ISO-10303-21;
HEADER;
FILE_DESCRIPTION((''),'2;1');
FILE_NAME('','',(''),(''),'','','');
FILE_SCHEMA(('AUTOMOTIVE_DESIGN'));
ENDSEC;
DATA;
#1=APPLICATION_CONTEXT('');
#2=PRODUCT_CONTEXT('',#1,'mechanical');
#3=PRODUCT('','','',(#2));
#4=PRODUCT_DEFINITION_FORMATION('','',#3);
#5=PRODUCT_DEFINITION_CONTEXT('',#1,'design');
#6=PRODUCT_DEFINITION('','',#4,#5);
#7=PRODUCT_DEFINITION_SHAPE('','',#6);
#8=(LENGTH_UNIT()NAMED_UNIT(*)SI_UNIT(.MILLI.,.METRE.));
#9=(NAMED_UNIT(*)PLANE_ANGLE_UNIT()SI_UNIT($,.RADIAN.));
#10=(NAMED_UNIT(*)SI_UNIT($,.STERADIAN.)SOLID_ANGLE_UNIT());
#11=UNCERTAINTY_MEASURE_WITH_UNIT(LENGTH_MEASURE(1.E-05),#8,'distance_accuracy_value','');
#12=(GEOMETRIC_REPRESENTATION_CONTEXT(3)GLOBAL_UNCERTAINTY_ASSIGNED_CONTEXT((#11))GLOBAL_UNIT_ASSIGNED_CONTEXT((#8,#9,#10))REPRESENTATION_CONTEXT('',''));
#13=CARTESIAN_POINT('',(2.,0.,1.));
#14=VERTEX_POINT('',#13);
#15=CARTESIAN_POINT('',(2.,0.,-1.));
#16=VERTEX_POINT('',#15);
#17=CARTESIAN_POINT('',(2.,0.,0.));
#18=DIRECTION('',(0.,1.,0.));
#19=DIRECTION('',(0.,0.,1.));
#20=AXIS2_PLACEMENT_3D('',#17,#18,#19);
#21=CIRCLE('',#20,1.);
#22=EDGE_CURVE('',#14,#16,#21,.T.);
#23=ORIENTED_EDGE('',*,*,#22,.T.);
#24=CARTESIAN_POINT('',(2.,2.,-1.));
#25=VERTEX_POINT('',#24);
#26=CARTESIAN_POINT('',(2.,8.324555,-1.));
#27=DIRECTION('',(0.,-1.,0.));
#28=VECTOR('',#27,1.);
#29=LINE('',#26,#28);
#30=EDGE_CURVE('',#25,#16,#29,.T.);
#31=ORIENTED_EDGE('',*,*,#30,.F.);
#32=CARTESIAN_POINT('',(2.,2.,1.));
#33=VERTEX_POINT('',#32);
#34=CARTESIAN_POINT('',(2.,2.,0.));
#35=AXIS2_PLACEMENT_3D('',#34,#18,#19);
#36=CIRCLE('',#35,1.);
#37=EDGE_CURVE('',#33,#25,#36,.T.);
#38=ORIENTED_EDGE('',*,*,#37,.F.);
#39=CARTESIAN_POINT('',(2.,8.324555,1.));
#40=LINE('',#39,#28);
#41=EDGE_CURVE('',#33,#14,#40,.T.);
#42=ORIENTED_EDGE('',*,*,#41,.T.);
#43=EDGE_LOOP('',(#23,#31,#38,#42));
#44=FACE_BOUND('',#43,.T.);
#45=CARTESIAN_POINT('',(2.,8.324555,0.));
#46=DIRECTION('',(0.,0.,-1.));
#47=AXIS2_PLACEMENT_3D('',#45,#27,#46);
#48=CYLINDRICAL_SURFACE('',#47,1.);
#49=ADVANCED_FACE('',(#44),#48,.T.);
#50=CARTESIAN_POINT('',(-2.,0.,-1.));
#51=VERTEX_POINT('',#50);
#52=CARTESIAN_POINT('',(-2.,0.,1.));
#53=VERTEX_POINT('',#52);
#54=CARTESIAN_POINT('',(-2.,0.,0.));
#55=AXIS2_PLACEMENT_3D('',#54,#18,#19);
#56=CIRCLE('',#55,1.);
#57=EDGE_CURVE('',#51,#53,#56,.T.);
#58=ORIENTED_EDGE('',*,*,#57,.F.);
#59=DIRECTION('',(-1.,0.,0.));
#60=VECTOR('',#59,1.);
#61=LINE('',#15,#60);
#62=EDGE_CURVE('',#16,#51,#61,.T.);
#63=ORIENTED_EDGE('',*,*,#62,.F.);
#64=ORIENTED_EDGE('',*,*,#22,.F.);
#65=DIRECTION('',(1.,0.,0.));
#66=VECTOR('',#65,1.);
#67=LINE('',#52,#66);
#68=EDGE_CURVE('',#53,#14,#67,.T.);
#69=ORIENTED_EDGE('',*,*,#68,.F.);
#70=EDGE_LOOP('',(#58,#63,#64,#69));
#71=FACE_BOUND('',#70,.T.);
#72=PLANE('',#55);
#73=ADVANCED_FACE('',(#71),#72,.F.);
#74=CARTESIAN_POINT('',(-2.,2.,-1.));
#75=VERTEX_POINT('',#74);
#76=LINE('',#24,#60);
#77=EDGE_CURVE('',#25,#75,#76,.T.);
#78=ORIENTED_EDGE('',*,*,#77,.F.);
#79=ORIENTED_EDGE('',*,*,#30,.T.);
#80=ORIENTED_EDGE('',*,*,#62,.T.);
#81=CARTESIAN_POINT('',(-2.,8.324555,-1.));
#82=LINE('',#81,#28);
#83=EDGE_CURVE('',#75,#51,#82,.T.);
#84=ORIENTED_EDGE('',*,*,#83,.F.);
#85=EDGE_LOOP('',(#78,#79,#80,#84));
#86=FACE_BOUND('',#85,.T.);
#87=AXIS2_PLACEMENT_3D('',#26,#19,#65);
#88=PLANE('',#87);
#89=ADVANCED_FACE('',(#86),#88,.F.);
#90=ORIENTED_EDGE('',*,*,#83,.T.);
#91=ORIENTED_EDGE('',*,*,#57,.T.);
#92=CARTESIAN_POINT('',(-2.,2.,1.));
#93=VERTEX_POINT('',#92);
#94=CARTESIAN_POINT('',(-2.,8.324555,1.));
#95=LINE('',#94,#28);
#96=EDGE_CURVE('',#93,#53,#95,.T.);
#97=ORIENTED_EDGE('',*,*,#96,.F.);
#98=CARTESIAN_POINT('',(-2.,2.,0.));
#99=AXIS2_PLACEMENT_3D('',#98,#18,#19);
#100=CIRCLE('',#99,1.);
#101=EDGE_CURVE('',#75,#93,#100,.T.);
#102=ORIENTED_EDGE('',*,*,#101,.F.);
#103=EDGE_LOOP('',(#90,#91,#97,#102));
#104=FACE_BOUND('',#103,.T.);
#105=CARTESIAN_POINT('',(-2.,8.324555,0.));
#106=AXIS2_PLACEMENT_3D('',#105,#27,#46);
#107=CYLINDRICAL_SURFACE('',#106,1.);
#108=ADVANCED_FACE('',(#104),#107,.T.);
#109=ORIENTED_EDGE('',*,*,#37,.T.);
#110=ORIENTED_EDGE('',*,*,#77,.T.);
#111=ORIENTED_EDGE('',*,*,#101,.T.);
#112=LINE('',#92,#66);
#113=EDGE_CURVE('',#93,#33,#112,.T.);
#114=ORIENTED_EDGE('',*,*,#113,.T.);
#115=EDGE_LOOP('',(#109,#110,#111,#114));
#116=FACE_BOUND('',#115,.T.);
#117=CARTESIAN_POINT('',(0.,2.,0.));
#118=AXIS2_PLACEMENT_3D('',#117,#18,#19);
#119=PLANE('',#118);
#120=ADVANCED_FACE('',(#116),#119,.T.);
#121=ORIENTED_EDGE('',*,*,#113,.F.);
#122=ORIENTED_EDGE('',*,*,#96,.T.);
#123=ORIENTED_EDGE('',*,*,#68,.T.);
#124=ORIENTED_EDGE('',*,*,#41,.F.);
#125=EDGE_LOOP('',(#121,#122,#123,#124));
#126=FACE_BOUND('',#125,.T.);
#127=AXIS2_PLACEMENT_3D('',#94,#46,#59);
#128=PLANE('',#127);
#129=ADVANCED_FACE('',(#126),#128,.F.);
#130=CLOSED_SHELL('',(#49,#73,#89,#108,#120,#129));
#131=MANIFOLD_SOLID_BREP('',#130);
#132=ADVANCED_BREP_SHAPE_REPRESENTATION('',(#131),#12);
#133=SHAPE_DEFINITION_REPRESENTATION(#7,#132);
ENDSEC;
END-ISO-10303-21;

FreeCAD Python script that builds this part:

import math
import FreeCAD as App
import Part
import Sketcher
Q = App.Units.Quantity

doc = App.newDocument("Part")
body = doc.addObject("PartDesign::Body", "Body")

# Sketch on XZ plane
sketch1 = body.newObject("Sketcher::SketchObject", "Sketch")
sketch1.AttachmentSupport = (doc.getObject("XZ_Plane"), [""])
sketch1.MapMode = "FlatFace"
sketch1.addGeometry(Part.LineSegment(App.Vector(2, -1, 0), App.Vector(-2, -1, 0)), False)
sketch1.addGeometry(Part.ArcOfCircle(Part.Circle(App.Vector(-2, 0, 0), App.Vector(0, 0, 1), 1), math.radians(90), math.radians(270)), False)
sketch1.addGeometry(Part.LineSegment(App.Vector(-2, 1, 0), App.Vector(2, 1, 0)), False)
sketch1.addGeometry(Part.ArcOfCircle(Part.Circle(App.Vector(2, 0, 0), App.Vector(0, 0, 1), 1), math.radians(-90), math.radians(90)), False)
sketch1.addConstraint(Sketcher.Constraint("Tangent", 0, 2, 1, 2))
sketch1.addConstraint(Sketcher.Constraint("Tangent", 1, 1, 2, 1))
sketch1.addConstraint(Sketcher.Constraint("Tangent", 2, 2, 3, 2))
sketch1.addConstraint(Sketcher.Constraint("Tangent", 3, 1, 0, 1))
sketch1.addConstraint(Sketcher.Constraint("Horizontal", 0))
sketch1.addConstraint(Sketcher.Constraint("Horizontal", 2))
sketch1.addConstraint(Sketcher.Constraint("Symmetric", 1, 3, 3, 3, -1, 1))
sketch1.addConstraint(Sketcher.Constraint("Radius", 1, Q("1 mm")))
sketch1.addConstraint(Sketcher.Constraint("DistanceX", 0, 2, 0, 1, Q("4 mm")))
pad1 = body.newObject("PartDesign::Pad", "Pad")
pad1.Profile = sketch1
pad1.Length = 2
pad1.Reversed = True

doc.recompute()
